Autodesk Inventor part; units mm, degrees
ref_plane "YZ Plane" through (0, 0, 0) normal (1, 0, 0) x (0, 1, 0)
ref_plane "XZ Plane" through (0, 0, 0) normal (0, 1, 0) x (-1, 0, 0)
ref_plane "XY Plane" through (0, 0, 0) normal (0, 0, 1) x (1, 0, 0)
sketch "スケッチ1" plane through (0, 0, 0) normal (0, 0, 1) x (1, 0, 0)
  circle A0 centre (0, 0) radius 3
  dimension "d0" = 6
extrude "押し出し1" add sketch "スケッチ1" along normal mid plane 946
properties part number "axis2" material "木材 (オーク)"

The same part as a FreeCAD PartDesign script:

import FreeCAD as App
import Part
import Sketcher
from FreeCAD import Vector
Q = App.Units.Quantity

doc = App.newDocument("Part")
body = doc.addObject("PartDesign::Body", "Body")

sketch1 = body.newObject("Sketcher::SketchObject", "Sketch")
sketch1.AttachmentSupport = (doc.getObject("XY_Plane"), [""])
sketch1.MapMode = "FlatFace"
sketch1.addGeometry(Part.Circle(Vector(0, 0, 0), Vector(0, 0, 1), 3), False)
sketch1.addConstraint([
    Sketcher.Constraint("Coincident", 0, 3, -1, 1),
    Sketcher.Constraint("Diameter", 0, Q("6 mm")),
])
pad1 = body.newObject("PartDesign::Pad", "Pad")
pad1.Profile = sketch1
pad1.Length = 946
pad1.Midplane = True

doc.recompute()
